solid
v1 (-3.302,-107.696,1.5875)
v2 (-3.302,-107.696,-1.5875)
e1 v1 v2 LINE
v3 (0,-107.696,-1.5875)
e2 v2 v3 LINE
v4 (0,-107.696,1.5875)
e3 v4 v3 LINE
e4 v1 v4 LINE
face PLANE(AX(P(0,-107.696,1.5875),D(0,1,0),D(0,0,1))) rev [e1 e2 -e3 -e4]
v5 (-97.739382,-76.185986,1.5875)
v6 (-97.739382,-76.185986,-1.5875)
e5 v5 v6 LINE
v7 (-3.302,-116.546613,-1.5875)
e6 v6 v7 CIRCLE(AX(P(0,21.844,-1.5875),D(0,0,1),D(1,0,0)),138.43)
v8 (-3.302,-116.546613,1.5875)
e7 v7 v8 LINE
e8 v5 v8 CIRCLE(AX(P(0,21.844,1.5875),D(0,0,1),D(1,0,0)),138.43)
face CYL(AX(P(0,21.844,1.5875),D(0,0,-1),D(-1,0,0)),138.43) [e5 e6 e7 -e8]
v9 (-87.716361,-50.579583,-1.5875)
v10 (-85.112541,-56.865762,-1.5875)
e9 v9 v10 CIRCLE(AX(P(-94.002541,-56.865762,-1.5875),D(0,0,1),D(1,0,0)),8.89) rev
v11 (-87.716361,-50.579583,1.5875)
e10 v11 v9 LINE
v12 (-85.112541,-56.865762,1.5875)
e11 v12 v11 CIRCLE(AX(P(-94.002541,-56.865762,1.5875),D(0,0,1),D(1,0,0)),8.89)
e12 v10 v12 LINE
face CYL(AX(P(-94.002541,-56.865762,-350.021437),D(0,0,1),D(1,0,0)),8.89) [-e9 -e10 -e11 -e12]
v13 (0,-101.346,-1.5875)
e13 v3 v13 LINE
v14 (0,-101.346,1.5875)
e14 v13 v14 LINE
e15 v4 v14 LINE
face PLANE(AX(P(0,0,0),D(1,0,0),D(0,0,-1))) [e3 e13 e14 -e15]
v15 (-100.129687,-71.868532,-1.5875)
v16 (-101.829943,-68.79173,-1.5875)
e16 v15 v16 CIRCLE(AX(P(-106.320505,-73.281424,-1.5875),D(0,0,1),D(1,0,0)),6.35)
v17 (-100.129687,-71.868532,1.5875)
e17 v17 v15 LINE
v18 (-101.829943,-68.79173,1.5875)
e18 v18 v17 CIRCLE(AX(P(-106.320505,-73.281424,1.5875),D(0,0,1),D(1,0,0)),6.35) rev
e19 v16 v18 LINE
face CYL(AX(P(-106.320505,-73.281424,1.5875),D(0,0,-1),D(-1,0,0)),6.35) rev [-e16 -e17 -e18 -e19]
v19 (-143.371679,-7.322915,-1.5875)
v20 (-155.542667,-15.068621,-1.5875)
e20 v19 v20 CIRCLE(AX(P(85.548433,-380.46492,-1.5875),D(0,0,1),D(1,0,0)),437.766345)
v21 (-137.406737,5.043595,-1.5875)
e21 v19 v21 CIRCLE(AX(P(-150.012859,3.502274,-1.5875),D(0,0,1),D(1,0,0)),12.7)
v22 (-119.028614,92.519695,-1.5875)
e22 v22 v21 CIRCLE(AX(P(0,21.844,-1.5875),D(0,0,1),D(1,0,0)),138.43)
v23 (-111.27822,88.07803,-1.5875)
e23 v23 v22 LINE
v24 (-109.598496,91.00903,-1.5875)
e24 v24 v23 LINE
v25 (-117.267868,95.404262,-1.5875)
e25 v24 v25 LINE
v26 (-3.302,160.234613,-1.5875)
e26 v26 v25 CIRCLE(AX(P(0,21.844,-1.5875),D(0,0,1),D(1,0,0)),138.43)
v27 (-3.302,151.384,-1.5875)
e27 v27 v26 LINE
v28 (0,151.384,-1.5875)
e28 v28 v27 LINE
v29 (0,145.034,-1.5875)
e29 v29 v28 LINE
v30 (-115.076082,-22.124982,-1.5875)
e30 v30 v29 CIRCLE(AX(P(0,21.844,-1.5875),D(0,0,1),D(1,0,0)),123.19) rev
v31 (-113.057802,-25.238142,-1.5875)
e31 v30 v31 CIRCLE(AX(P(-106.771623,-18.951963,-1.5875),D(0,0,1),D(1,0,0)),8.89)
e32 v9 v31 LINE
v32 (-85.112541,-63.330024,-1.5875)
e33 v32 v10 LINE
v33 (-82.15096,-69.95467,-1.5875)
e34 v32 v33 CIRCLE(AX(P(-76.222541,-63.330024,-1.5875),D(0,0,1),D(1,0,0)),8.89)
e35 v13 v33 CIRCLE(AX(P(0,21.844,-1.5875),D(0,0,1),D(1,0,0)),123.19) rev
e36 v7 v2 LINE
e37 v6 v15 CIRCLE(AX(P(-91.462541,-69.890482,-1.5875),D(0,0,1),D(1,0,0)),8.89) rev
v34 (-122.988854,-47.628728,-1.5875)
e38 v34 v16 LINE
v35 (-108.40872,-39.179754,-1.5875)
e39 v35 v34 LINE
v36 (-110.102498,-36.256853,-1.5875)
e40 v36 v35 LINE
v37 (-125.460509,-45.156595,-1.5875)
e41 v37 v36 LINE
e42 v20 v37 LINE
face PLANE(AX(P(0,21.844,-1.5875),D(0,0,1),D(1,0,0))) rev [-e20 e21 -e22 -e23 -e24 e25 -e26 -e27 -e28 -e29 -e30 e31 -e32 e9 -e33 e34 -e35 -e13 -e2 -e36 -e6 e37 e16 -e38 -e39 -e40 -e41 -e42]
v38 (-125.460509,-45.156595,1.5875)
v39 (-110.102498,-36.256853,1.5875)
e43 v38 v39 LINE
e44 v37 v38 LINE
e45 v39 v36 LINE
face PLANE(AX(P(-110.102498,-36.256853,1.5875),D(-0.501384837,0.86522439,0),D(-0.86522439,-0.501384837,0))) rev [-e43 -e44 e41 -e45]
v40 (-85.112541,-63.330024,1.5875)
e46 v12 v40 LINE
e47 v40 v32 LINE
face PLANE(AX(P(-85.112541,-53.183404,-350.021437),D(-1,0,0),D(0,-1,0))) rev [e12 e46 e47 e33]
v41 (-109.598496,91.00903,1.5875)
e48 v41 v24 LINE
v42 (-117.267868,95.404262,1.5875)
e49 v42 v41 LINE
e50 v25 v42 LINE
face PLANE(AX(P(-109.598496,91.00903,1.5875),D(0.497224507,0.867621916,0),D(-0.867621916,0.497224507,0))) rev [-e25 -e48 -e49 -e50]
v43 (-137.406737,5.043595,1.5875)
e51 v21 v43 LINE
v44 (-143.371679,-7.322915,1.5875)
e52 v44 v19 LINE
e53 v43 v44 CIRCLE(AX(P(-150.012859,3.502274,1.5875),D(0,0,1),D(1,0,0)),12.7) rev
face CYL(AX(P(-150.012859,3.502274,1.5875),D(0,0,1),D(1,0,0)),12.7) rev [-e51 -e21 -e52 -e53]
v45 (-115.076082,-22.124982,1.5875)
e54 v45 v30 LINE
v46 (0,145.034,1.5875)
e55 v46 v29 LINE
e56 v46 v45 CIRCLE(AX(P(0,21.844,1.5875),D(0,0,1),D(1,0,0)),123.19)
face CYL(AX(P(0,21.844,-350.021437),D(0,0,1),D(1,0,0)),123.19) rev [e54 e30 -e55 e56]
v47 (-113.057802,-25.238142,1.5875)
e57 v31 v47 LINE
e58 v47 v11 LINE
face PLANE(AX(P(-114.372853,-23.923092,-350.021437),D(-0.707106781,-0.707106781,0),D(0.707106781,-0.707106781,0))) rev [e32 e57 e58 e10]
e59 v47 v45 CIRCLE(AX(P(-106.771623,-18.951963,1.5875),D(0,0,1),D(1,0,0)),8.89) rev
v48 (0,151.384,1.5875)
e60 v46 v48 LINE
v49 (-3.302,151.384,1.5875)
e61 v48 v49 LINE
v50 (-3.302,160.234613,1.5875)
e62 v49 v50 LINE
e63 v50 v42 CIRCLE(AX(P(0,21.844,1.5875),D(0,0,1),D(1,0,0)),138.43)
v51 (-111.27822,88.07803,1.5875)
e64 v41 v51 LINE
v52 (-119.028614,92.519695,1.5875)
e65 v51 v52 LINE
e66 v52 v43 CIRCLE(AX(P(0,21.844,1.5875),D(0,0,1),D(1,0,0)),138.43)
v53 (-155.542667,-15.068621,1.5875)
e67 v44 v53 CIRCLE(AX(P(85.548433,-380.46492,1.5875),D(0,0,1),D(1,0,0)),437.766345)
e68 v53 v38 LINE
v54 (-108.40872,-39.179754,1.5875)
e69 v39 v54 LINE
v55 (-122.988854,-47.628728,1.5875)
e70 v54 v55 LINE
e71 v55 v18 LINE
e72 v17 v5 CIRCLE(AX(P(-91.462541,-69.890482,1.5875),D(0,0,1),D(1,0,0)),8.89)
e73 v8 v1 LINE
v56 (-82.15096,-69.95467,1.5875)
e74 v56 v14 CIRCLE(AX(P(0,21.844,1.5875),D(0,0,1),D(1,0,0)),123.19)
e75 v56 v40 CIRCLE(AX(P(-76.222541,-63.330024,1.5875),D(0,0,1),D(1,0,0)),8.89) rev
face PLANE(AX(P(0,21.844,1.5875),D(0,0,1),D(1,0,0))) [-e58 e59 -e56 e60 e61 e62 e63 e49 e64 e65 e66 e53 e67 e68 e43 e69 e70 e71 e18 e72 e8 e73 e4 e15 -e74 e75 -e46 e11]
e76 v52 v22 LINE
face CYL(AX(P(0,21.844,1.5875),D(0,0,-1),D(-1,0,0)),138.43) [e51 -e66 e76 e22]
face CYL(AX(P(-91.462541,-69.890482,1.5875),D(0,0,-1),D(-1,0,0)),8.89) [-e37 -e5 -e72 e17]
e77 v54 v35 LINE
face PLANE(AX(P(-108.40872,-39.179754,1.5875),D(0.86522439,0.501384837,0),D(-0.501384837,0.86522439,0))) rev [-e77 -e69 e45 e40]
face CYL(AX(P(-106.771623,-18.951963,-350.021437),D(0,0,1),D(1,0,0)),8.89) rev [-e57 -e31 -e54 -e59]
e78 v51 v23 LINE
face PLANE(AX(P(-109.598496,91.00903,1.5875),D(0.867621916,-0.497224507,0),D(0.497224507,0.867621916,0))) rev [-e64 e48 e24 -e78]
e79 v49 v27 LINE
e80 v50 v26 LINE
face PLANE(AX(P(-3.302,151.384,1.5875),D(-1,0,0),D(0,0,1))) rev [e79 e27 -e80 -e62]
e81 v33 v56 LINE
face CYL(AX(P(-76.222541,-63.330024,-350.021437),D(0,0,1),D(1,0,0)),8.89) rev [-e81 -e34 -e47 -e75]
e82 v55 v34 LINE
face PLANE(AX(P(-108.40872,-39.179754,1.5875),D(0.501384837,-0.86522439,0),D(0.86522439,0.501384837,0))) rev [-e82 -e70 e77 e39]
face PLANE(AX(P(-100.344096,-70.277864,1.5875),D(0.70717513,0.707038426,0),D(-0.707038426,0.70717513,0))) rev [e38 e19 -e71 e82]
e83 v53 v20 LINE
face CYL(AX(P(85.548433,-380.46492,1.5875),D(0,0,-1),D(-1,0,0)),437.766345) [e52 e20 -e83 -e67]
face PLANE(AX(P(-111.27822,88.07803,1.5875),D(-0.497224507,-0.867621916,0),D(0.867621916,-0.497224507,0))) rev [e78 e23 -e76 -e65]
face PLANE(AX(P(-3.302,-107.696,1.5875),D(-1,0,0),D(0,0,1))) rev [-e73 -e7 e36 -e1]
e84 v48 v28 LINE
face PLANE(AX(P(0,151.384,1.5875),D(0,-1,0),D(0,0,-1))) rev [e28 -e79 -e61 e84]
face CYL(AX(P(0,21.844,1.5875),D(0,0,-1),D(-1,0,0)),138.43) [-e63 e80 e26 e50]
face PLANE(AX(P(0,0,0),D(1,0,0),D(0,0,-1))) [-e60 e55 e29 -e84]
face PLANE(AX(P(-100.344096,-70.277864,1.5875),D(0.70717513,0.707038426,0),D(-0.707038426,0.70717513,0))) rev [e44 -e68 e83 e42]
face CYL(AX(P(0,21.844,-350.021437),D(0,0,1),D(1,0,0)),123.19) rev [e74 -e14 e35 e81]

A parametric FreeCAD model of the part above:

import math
import FreeCAD as App
import Part
import Sketcher
from FreeCAD import Vector
Q = App.Units.Quantity


def edges_at(feature, points):
    """Names of the edges that pass closest to the given points."""
    edges = feature.Shape.Edges
    near = lambda p: min(range(len(edges)), key=lambda i: edges[i].distToShape(Part.Vertex(*p))[0])
    return sorted({f"Edge{near(p) + 1}" for p in points})


def add_polygon(sketch, points):
    """Adds a closed chain of lines whose ends are joined by coincident constraints."""
    first, n = sketch.GeometryCount, len(points)
    for a, b in zip(points, points[1:] + points[:1]):
        sketch.addGeometry(Part.LineSegment(App.Vector(*a, 0), App.Vector(*b, 0)), False)
    for i in range(n):
        sketch.addConstraint(Sketcher.Constraint("Coincident", first + i, 2, first + (i + 1) % n, 1))

doc = App.newDocument("Part")
body = doc.addObject("PartDesign::Body", "Body")

# Sketch on XY plane
sketch1 = doc.addObject("Sketcher::SketchObject", "Sketch")
body.addObject(sketch1)
sketch1.AttachmentSupport = (doc.XY_Plane, [""])
sketch1.MapMode = "FlatFace"
sketch1.addGeometry([
    Part.LineSegment(Vector(-127, -33, 0), Vector(-100, -59, 0)),
    Part.LineSegment(Vector(-100, -59, 0), Vector(-100, -74, 0)),
    Part.ArcOfCircle(Part.Circle(Vector(0, 22, 0), Vector(0, 0, 1), 138), math.radians(-136), math.radians(-113)),
    Part.ArcOfCircle(Part.Circle(Vector(0, 22, 0), Vector(0, 0, 1), 138), math.radians(-113), math.radians(203)),
], False)
sketch1.addConstraint([
    Sketcher.Constraint("Coincident", 0, 2, 1, 1),
    Sketcher.Constraint("Coincident", 1, 2, 2, 1),
    Sketcher.Constraint("Tangent", 2, 2, 3, 1),
    Sketcher.Constraint("Coincident", 3, 2, 0, 1),
    Sketcher.Constraint("Vertical", 1),
    Sketcher.Constraint("Equal", 2, 3),
    Sketcher.Constraint("PointOnObject", 2, 3, -2),
    Sketcher.Constraint("Radius", 2, Q("5.45 in")),
    Sketcher.Constraint("Angle", 0, Q("-45 deg")),
    Sketcher.Constraint("Distance", 0, Q("1.5 in")),
    Sketcher.Constraint("DistanceY", -1, 1, 2, 3, Q("0.86 in")),
    Sketcher.Constraint("DistanceY", 1, 2, 1, 1, Q("0.5517 in")),
    Sketcher.Constraint("DistanceX", 2, 2, -1, 1, Q("54.39925 mm")),
])
pad1 = doc.addObject("PartDesign::Pad", "Pad")
body.addObject(pad1)
pad1.Profile = sketch1
pad1.Length = Q("0.125 in")
pad1.Midplane = True

# Sketch on XY plane
sketch2 = doc.addObject("Sketcher::SketchObject", "Sketch001")
body.addObject(sketch2)
sketch2.AttachmentSupport = (doc.XY_Plane, [""])
sketch2.MapMode = "FlatFace"
sketch2.AttachmentOffset = App.Placement(Vector(0, 0, 0.0625 * 25.4), App.Rotation())
sketch2.addGeometry([
    Part.LineSegment(Vector(-114, -24, 0), Vector(-85, -53, 0)),
    Part.LineSegment(Vector(-85, -53, 0), Vector(-85, -67, 0)),
    Part.ArcOfCircle(Part.Circle(Vector(0, 22, 0), Vector(0, 0, 1), 123), math.radians(-134), math.radians(202)),
], False)
sketch2.addConstraint([
    Sketcher.Constraint("Coincident", 0, 2, 1, 1),
    Sketcher.Constraint("Coincident", 1, 2, 2, 1),
    Sketcher.Constraint("Coincident", 2, 2, 0, 1),
    Sketcher.Constraint("Vertical", 1),
    Sketcher.Constraint("PointOnObject", 2, 3, -2),
    Sketcher.Constraint("Radius", 2, Q("4.85 in")),
    Sketcher.Constraint("Angle", 0, Q("-45 deg")),
    Sketcher.Constraint("DistanceY", -1, 1, 2, 3, Q("0.86 in")),
    Sketcher.Constraint("Distance", 0, Q("41.38033 mm")),
    Sketcher.Constraint("DistanceY", 1, 2, 1, 1, Q("14.032304 mm")),
])
pocket1 = doc.addObject("PartDesign::Pocket", "Pocket")
body.addObject(pocket1)
pocket1.Profile = sketch2
pocket1.Length = Q("0.125 in")
doc.recompute()

fillet = doc.addObject("PartDesign::Fillet", "Fillet")
body.addObject(fillet)
fillet.Base = (pocket1, edges_at(pocket1, [
    (-114.373, -23.923, 0),
    (-85.113, -67.216, 0),
    (-85.113, -53.183, 0),
    (-100.353, -73.509, 0),
    (-100.353, -59.496, 0),
    (-127.293, -32.555, 0),
]))
fillet.Radius = Q("0.35 in")

# Sketch on YZ plane
sketch3 = doc.addObject("Sketcher::SketchObject", "Sketch002")
body.addObject(sketch3)
sketch3.AttachmentSupport = (doc.YZ_Plane, [""])
sketch3.MapMode = "FlatFace"
add_polygon(sketch3, [(233, 96), (-208, 96), (-208, -122), (233, -122)])  # lines 0-3
sketch3.addConstraint([
    Sketcher.Constraint("Horizontal", 0),
    Sketcher.Constraint("Vertical", 1),
    Sketcher.Constraint("Horizontal", 2),
    Sketcher.Constraint("Vertical", 3),
    Sketcher.Constraint("DistanceX", 0, 2, 0, 1, Q("440.65457 mm")),
    Sketcher.Constraint("DistanceY", 1, 2, 1, 1, Q("218.524279 mm")),
    Sketcher.Constraint("DistanceY", -1, 1, 0, 2, Q("96.280499 mm")),
    Sketcher.Constraint("DistanceX", 0, 2, -1, 1, Q("207.858914 mm")),
])
pocket2 = doc.addObject("PartDesign::Pocket", "Pocket001")
body.addObject(pocket2)
pocket2.Profile = sketch3
pocket2.Type = "ThroughAll"
pocket2.Reversed = True

# Sketch on XY plane
sketch4 = doc.addObject("Sketcher::SketchObject", "Sketch003")
body.addObject(sketch4)
sketch4.AttachmentSupport = (doc.XY_Plane, [""])
sketch4.MapMode = "FlatFace"
sketch4.addGeometry([
    Part.LineSegment(Vector(-100, -70, 0), Vector(-93, -63, 0)),
    Part.LineSegment(Vector(-93, -63, 0), Vector(-135, -3, 0)),
    Part.ArcOfCircle(Part.Circle(Vector(86, -380, 0), Vector(0, 0, 1), 438), math.radians(120.31), math.radians(123.42)),
    Part.LineSegment(Vector(-156, -15, 0), Vector(-100, -70, 0)),
], False)
sketch4.addConstraint([
    Sketcher.Constraint("Coincident", 0, 2, 1, 1),
    Sketcher.Constraint("Coincident", 1, 2, 2, 1),
    Sketcher.Constraint("Coincident", 2, 2, 3, 1),
    Sketcher.Constraint("Coincident", 3, 2, 0, 1),
    Sketcher.Constraint("Perpendicular", 0, 3),
    Sketcher.Constraint("DistanceY", 1, 2, -1, 1, Q("0.1 in")),
    Sketcher.Constraint("Radius", 2, Q("437.766343 mm")),
    Sketcher.Constraint("DistanceX", 2, 2, 2, 3, Q("241.091098 mm")),
    Sketcher.Constraint("DistanceX", -1, 1, 2, 3, Q("85.548432 mm")),
    Sketcher.Constraint("DistanceY", 2, 3, -1, 1, Q("380.464918 mm")),
    Sketcher.Constraint("DistanceY", 3, 2, 0, 2, Q("7.21072 mm")),
    Sketcher.Constraint("DistanceX", 1, 2, 3, 2, Q("35.04214 mm")),
    Sketcher.Constraint("Distance", 0, Q("10.198483 mm")),
])
pad2 = doc.addObject("PartDesign::Pad", "Pad001")
body.addObject(pad2)
pad2.Profile = sketch4
pad2.Length = Q("0.125 in")
pad2.Midplane = True
doc.recompute()

fillet2 = doc.addObject("PartDesign::Fillet", "Fillet001")
body.addObject(fillet2)
fillet2.Base = (pad2, edges_at(pad2, [(-136.181, -3.006, 0)]))
fillet2.Radius = Q("0.5 in")
doc.recompute()

fillet3 = doc.addObject("PartDesign::Fillet", "Fillet002")
body.addObject(fillet3)
fillet3.Base = (fillet2, edges_at(fillet2, [(-100.344, -70.278, 0)]))
fillet3.Radius = Q("0.25 in")

# Sketch on XY plane
sketch5 = doc.addObject("Sketcher::SketchObject", "Sketch004")
body.addObject(sketch5)
sketch5.AttachmentSupport = (doc.XY_Plane, [""])
sketch5.MapMode = "FlatFace"
sketch5.AttachmentOffset = App.Placement(Vector(0, 0, -0.0625 * 25.4), App.Rotation())
add_polygon(sketch5, [(0, 164.1), (0, 151.4), (-3.3, 151.4), (-3.3, 164.1)])  # lines 0-3
add_polygon(sketch5, [(-109.6, 91), (-111.3, 88.1), (-122.3, 94.4), (-120.6, 97.3)])  # lines 4-7
add_polygon(sketch5, [(-110.1, -36.3), (-108.4, -39.2), (-124.9, -48.7), (-126.6, -45.8)])  # lines 8-11
add_polygon(sketch5, [(0, -107.7), (0, -120.4), (-3.3, -120.4), (-3.3, -107.7)])  # lines 12-15
sketch5.addConstraint([
    Sketcher.Constraint("Vertical", 0),
    Sketcher.Constraint("Horizontal", 1),
    Sketcher.Constraint("Vertical", 2),
    Sketcher.Constraint("Horizontal", 3),
    Sketcher.Constraint("Vertical", 12),
    Sketcher.Constraint("Horizontal", 13),
    Sketcher.Constraint("Vertical", 14),
    Sketcher.Constraint("Horizontal", 15),
    Sketcher.Constraint("PointOnObject", 0, 2, -2),
    Sketcher.Constraint("PointOnObject", 12, 2, -2),
    Sketcher.Constraint("Perpendicular", 4, 5),
    Sketcher.Constraint("Perpendicular", 5, 6),
    Sketcher.Constraint("Perpendicular", 6, 7),
    Sketcher.Constraint("Perpendicular", 8, 9),
    Sketcher.Constraint("Perpendicular", 9, 10),
    Sketcher.Constraint("Perpendicular", 10, 11),
    Sketcher.Constraint("Vertical", 2, 2, 13, 2),
    Sketcher.Constraint("Equal", 2, 12),
    Sketcher.Constraint("Equal", 6, 8),
    Sketcher.Constraint("DistanceY", 0, 2, 0, 1, Q("0.5 in")),
    Sketcher.Constraint("Distance", 5, Q("0.5 in")),
    Sketcher.Constraint("DistanceX", 1, 2, 1, 1, Q("0.13 in")),
    Sketcher.Constraint("Distance", 9, Q("0.75 in")),
    Sketcher.Constraint("DistanceY", -1, 1, 0, 2, Q("5.96 in")),
    Sketcher.Constraint("DistanceY", 12, 2, -1, 1, Q("4.74 in")),
    Sketcher.Constraint("Distance", 4, Q("0.133 in")),
    Sketcher.Constraint("DistanceY", 9, 2, 5, 2, Q("5.6347999 in")),
    Sketcher.Constraint("DistanceX", 11, 2, -1, 1, Q("110.102498 mm")),
    Sketcher.Constraint("DistanceX", 5, 2, 4, 2, Q("11.018798 mm")),
    Sketcher.Constraint("DistanceX", 4, 2, 8, 2, Q("2.8695 mm")),
    Sketcher.Constraint("DistanceY", 9, 2, 10, 2, Q("2.922901 mm")),
    Sketcher.Constraint("DistanceY", -1, 1, 4, 2, Q("88.07803 mm")),
])
pocket3 = doc.addObject("PartDesign::Pocket", "Pocket002")
body.addObject(pocket3)
pocket3.Profile = sketch5
pocket3.Type = "ThroughAll"
pocket3.Reversed = True

doc.recompute()
